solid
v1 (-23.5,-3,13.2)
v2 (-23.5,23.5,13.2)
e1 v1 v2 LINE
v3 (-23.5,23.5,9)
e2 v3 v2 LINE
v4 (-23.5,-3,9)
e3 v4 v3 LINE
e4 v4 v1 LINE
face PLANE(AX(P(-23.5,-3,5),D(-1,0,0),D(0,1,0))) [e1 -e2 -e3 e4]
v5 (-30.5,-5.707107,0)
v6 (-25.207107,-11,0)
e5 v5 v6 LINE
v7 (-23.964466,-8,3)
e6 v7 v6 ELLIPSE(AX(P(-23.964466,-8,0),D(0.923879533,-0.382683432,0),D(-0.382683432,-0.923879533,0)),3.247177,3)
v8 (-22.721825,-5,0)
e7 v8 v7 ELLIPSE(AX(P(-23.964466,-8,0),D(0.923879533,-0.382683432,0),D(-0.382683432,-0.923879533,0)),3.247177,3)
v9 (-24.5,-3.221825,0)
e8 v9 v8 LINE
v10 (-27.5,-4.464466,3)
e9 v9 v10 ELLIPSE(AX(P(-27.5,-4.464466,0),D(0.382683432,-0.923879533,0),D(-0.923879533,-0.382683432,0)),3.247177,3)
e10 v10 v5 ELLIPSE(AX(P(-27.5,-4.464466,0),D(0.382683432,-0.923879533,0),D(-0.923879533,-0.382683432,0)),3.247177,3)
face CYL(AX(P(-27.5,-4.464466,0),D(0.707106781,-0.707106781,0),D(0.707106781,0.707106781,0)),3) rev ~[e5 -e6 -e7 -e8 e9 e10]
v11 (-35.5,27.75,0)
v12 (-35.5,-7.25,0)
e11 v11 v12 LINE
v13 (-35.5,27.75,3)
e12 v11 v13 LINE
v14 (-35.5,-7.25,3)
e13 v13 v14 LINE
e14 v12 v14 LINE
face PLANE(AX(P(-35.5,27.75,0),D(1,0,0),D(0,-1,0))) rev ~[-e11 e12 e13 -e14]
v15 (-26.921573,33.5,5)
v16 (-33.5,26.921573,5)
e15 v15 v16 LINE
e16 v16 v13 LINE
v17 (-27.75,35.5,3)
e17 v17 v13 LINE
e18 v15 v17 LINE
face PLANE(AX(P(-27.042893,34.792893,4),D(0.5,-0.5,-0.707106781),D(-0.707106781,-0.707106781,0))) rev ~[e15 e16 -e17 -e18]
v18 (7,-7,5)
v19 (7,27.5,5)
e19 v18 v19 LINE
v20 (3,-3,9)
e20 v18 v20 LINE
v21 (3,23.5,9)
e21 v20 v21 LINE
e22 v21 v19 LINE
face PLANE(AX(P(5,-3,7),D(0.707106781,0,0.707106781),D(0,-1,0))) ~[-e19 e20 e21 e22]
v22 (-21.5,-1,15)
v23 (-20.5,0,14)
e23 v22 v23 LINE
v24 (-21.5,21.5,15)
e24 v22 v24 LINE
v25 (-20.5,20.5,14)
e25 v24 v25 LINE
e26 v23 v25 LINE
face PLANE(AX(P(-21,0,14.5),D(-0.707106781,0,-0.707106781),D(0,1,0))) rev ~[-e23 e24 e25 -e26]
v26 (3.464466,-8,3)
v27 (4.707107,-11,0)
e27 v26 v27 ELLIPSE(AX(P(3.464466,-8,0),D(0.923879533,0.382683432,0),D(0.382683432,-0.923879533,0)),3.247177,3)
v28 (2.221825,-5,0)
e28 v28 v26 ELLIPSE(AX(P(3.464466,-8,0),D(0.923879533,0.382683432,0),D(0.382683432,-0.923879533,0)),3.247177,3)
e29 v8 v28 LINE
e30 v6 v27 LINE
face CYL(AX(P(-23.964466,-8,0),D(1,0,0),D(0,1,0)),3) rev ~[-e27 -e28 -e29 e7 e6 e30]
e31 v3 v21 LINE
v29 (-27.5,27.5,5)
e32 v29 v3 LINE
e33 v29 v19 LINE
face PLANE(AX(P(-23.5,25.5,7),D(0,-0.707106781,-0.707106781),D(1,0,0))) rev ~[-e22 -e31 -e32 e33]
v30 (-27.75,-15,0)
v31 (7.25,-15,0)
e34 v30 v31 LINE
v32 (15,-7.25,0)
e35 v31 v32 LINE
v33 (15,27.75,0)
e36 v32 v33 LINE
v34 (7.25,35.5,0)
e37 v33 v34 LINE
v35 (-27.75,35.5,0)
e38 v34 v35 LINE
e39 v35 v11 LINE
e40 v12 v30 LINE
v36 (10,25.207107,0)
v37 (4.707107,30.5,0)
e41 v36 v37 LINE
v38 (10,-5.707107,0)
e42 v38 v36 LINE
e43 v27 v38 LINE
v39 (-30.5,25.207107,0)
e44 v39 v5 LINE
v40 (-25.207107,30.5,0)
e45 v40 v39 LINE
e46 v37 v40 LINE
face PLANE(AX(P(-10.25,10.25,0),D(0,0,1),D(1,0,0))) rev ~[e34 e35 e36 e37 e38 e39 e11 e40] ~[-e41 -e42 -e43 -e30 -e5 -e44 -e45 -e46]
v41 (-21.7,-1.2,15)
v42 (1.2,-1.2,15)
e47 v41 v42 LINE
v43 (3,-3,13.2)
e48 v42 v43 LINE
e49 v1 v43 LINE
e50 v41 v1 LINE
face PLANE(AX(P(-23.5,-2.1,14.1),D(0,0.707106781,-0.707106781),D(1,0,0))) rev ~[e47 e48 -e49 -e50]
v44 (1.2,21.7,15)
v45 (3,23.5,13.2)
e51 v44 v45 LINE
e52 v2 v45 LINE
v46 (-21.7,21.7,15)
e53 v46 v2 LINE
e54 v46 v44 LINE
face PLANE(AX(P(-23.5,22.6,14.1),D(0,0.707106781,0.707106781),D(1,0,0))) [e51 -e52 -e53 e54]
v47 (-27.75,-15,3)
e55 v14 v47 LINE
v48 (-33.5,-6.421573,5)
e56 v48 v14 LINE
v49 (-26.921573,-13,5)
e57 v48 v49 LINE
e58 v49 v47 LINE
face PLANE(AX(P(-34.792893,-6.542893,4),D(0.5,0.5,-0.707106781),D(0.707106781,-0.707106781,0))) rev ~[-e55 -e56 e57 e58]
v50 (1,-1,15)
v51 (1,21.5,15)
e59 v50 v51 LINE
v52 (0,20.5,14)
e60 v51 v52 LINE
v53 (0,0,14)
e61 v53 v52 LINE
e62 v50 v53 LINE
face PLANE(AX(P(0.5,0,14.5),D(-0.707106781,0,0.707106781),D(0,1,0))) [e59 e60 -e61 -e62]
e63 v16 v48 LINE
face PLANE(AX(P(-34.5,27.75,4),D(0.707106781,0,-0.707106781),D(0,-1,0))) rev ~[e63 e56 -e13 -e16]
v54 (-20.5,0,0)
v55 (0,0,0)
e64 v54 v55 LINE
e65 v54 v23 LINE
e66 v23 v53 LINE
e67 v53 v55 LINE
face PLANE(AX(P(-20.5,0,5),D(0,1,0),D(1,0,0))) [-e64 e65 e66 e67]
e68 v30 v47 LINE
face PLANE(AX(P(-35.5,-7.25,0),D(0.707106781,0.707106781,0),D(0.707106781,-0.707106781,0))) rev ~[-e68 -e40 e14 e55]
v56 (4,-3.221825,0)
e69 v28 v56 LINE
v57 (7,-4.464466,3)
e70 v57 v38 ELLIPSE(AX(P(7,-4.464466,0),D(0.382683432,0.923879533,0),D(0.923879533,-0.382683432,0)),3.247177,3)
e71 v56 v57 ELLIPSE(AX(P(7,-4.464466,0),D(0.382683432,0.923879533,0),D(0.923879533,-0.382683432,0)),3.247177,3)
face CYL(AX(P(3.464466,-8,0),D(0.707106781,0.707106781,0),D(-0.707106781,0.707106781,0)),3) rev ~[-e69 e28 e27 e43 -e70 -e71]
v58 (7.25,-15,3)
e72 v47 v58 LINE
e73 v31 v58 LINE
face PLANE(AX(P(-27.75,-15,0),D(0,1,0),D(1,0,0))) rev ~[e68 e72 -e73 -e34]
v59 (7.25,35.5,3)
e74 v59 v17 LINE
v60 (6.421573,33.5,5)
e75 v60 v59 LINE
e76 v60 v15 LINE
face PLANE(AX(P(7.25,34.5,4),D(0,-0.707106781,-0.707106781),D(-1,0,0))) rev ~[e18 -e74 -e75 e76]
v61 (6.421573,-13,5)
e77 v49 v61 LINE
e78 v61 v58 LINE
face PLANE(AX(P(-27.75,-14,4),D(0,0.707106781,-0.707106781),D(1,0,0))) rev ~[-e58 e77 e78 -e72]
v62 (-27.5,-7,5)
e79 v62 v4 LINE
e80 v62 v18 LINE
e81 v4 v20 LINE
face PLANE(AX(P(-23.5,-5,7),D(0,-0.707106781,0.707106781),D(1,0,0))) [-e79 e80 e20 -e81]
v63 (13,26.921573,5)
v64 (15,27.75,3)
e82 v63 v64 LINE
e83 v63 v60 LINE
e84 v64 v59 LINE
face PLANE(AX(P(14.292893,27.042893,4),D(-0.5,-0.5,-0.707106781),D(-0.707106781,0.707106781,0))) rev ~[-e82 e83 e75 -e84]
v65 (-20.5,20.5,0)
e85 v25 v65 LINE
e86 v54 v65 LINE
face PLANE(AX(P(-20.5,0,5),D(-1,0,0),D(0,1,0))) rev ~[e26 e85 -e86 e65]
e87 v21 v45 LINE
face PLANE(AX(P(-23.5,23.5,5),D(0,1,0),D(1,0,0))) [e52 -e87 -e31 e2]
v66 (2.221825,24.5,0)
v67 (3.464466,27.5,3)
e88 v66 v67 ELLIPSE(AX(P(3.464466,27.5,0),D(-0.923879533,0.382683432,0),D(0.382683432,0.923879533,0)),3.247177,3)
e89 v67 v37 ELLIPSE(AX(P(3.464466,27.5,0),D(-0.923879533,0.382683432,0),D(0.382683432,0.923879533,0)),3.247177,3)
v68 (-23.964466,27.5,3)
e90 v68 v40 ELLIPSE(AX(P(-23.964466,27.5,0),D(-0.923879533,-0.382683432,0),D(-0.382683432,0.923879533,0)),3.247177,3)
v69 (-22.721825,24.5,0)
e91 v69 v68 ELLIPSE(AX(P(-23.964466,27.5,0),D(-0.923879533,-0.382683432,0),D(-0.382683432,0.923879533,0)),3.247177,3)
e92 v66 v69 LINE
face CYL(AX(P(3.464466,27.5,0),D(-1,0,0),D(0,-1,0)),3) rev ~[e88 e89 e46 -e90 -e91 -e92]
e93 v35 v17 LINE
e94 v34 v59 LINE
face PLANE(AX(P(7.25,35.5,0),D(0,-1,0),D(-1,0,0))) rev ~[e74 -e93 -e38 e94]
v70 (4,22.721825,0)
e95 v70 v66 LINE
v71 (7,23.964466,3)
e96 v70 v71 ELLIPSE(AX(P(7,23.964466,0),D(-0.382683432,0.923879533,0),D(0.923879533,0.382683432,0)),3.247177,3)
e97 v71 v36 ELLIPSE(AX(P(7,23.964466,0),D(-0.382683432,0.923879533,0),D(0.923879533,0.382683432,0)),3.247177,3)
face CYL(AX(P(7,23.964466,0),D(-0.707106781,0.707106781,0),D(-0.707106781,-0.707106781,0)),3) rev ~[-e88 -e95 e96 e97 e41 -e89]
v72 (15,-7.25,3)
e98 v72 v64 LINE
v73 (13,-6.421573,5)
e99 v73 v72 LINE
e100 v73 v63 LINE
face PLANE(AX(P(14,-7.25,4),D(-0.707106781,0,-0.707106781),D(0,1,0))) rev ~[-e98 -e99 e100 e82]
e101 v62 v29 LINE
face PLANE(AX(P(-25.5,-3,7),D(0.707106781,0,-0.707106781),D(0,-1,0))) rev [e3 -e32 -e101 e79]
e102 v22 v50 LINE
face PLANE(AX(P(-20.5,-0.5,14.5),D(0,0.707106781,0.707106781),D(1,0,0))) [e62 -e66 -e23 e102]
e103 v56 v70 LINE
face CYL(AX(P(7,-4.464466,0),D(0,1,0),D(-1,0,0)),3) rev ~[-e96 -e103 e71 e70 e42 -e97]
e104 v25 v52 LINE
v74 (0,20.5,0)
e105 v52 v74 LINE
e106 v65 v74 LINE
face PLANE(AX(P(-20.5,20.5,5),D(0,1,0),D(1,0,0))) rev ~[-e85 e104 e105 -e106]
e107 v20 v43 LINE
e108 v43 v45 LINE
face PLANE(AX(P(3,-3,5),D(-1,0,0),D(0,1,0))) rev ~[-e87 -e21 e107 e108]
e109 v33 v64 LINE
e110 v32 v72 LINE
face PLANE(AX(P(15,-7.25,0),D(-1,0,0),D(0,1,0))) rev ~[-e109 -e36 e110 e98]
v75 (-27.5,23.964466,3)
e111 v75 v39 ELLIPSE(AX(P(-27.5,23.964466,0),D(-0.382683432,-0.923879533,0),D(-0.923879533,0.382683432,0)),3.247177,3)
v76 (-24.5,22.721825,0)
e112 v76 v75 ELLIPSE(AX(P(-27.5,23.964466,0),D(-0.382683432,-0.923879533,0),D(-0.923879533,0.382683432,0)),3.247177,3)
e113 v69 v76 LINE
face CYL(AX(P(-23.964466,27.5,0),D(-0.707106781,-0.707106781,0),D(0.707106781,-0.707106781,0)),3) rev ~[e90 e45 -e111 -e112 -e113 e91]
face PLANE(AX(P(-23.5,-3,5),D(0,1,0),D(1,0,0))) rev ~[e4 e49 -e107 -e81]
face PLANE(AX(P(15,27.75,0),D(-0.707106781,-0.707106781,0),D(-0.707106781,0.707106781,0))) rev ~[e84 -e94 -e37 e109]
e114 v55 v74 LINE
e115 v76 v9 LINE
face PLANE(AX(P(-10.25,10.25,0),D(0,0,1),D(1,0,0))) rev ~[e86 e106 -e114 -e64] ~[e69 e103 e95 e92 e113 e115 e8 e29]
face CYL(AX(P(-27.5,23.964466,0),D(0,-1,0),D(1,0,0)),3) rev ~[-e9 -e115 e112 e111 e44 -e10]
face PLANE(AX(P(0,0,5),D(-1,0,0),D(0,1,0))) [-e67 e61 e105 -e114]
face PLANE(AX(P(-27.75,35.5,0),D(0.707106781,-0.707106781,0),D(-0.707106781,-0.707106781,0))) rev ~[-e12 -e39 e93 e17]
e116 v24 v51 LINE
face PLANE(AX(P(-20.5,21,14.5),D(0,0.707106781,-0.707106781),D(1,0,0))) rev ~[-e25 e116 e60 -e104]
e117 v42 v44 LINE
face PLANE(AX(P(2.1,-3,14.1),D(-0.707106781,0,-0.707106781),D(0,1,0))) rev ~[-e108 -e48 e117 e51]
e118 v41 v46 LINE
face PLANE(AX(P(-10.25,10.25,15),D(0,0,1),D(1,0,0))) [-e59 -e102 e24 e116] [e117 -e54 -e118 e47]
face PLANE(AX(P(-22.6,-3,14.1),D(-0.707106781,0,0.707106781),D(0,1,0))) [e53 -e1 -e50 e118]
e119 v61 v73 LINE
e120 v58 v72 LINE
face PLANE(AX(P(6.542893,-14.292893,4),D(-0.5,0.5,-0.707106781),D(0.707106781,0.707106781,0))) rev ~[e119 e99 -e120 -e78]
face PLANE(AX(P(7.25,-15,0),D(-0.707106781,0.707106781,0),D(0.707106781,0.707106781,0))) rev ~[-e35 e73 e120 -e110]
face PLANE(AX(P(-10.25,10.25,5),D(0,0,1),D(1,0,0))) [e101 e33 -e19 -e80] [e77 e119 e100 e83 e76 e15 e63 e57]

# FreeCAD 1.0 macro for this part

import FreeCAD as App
import Part
import Sketcher

V = App.Vector


def edges_at(feature, points):
    """Names of the edges that pass closest to the given points."""
    edges = feature.Shape.Edges
    near = lambda p: min(range(len(edges)), key=lambda i: edges[i].distToShape(Part.Vertex(*p))[0])
    return sorted({f"Edge{near(p) + 1}" for p in points})


def add_polygon(sketch, points):
    """Adds a closed chain of lines whose ends are joined by coincident constraints."""
    first, n = sketch.GeometryCount, len(points)
    for a, b in zip(points, points[1:] + points[:1]):
        sketch.addGeometry(Part.LineSegment(App.Vector(*a, 0), App.Vector(*b, 0)), False)
    for i in range(n):
        sketch.addConstraint(Sketcher.Constraint("Coincident", first + i, 2, first + (i + 1) % n, 1))

doc = App.newDocument("Part")
body = doc.addObject("PartDesign::Body", "Body")

# Sketch on XY plane
sketch1 = body.newObject("Sketcher::SketchObject", "Sketch")
sketch1.AttachmentSupport = (doc.getObject("XY_Plane"), [""])
sketch1.MapMode = "FlatFace"
add_polygon(sketch1, [(7, -15), (15, -7), (15, 28), (7, 36), (-28, 36), (-36, 28), (-36, -7), (-28, -15)])  # lines 0-7
add_polygon(sketch1, [(0, 0), (-20, 0), (-20, 20), (0, 20)])  # lines 8-11
sketch1.addConstraint(Sketcher.Constraint("Vertical", 1))
sketch1.addConstraint(Sketcher.Constraint("Horizontal", 3))
sketch1.addConstraint(Sketcher.Constraint("Vertical", 5))
sketch1.addConstraint(Sketcher.Constraint("Horizontal", 7))
sketch1.addConstraint(Sketcher.Constraint("Horizontal", 8))
sketch1.addConstraint(Sketcher.Constraint("Vertical", 9))
sketch1.addConstraint(Sketcher.Constraint("Horizontal", 10))
sketch1.addConstraint(Sketcher.Constraint("Vertical", 11))
sketch1.addConstraint(Sketcher.Constraint("Coincident", 11, 2, -1, 1))
sketch1.addConstraint(Sketcher.Constraint("Perpendicular", 0, 2))
sketch1.addConstraint(Sketcher.Constraint("Perpendicular", 2, 4))
sketch1.addConstraint(Sketcher.Constraint("Perpendicular", 4, 6))
sketch1.addConstraint(Sketcher.Constraint("Horizontal", 1, 2, 4, 2))
sketch1.addConstraint(Sketcher.Constraint("Horizontal", 0, 2, 5, 2))
sketch1.addConstraint(Sketcher.Constraint("Vertical", 3, 2, 6, 2))
sketch1.addConstraint(Sketcher.Constraint("Vertical", 2, 2, 7, 2))
sketch1.addConstraint(Sketcher.Constraint("Equal", 7, 1))
sketch1.addConstraint(Sketcher.Constraint("Equal", 10, 9))
sketch1.addConstraint(Sketcher.Constraint("DistanceX", 3, 2, 3, 1, 35.0))
sketch1.addConstraint(Sketcher.Constraint("DistanceX", 8, 2, 8, 1, 20.5))
sketch1.addConstraint(Sketcher.Constraint("DistanceX", -1, 1, 0, 2, 15.0))
sketch1.addConstraint(Sketcher.Constraint("DistanceY", 6, 2, -1, 1, 15.0))
sketch1.addConstraint(Sketcher.Constraint("DistanceX", 5, 2, 8, 2, 15.0))
pad1 = body.newObject("PartDesign::Pad", "Pad")
pad1.Profile = sketch1
pad1.Length = 5

# Sketch on XY plane
sketch2 = body.newObject("Sketcher::SketchObject", "Sketch001")
sketch2.AttachmentSupport = (doc.getObject("XY_Plane"), [""])
sketch2.MapMode = "FlatFace"
sketch2.AttachmentOffset = App.Placement(V(0, 0, 5), App.Rotation())
add_polygon(sketch2, [(-24, 24), (-24, -3), (3, -3), (3, 24)])  # lines 0-3
add_polygon(sketch2, [(0, 0), (-20, 0), (-20, 20), (0, 20)])  # lines 4-7
sketch2.addConstraint(Sketcher.Constraint("Vertical", 0))
sketch2.addConstraint(Sketcher.Constraint("Horizontal", 1))
sketch2.addConstraint(Sketcher.Constraint("Vertical", 2))
sketch2.addConstraint(Sketcher.Constraint("Horizontal", 3))
sketch2.addConstraint(Sketcher.Constraint("Horizontal", 4))
sketch2.addConstraint(Sketcher.Constraint("Vertical", 5))
sketch2.addConstraint(Sketcher.Constraint("Horizontal", 6))
sketch2.addConstraint(Sketcher.Constraint("Vertical", 7))
sketch2.addConstraint(Sketcher.Constraint("Coincident", 7, 2, -1, 1))
sketch2.addConstraint(Sketcher.Constraint("Equal", 3, 0))
sketch2.addConstraint(Sketcher.Constraint("Equal", 6, 5))
sketch2.addConstraint(Sketcher.Constraint("DistanceX", 1, 1, 1, 2, 26.5))
sketch2.addConstraint(Sketcher.Constraint("DistanceX", 4, 2, 4, 1, 20.5))
sketch2.addConstraint(Sketcher.Constraint("DistanceY", 0, 2, -1, 1, 3.0))
sketch2.addConstraint(Sketcher.Constraint("DistanceX", -1, 1, 1, 2, 3.0))
pad2 = body.newObject("PartDesign::Pad", "Pad001")
pad2.Profile = sketch2
pad2.Length = 10
doc.recompute()

chamfer = body.newObject("PartDesign::Chamfer", "Chamfer")
chamfer.Base = (pad2, edges_at(pad2, [
    (-10.25, -3, 5),
    (3, 10.25, 5),
    (-10.25, 23.5, 5),
    (-23.5, 10.25, 5),
]))
chamfer.Size = 4
doc.recompute()

chamfer2 = body.newObject("PartDesign::Chamfer", "Chamfer001")
chamfer2.Base = (chamfer, edges_at(chamfer, [
    (0, 10.25, 15),
    (-10.25, 0, 15),
    (-20.5, 10.25, 15),
    (-10.25, 20.5, 15),
]))
chamfer2.Size = 1
doc.recompute()

chamfer3 = body.newObject("PartDesign::Chamfer", "Chamfer002")
chamfer3.Base = (chamfer2, edges_at(chamfer2, [
    (3, 10.25, 15),
    (-10.25, 23.5, 15),
    (-23.5, 10.25, 15),
    (-10.25, -3, 15),
]))
chamfer3.Size = 1.8
doc.recompute()

chamfer4 = body.newObject("PartDesign::Chamfer", "Chamfer003")
chamfer4.Base = (chamfer3, edges_at(chamfer3, [
    (15, 10.25, 5),
    (11.125, 31.625, 5),
    (-10.25, 35.5, 5),
    (-31.625, 31.625, 5),
    (-35.5, 10.25, 5),
    (-31.625, -11.125, 5),
    (-10.25, -15, 5),
    (11.125, -11.125, 5),
]))
chamfer4.Size = 2

# Sketch on XZ plane
sketch3 = body.newObject("Sketcher::SketchObject", "Sketch002")
sketch3.AttachmentSupport = (doc.getObject("XZ_Plane"), [""])
sketch3.MapMode = "FlatFace"
sketch3.addGeometry(Part.Circle(V(-27.5, 0, 0), V(0, 0, 1), 3), False)
sketch3.addConstraint(Sketcher.Constraint("PointOnObject", 0, 3, -1))
sketch3.addConstraint(Sketcher.Constraint("Diameter", 0, 6.0))
sketch3.addConstraint(Sketcher.Constraint("DistanceX", 0, 3, -1, 1, 27.5))

# Sketch on XY plane
sketch4 = body.newObject("Sketcher::SketchObject", "Sketch003")
sketch4.AttachmentSupport = (doc.getObject("XY_Plane"), [""])
sketch4.MapMode = "FlatFace"
add_polygon(sketch4, [(-28, 24), (-28, -4), (-24, -8), (3, -8), (7, -4), (7, 24), (3, 28), (-24, 28)])  # lines 0-7
sketch4.addConstraint(Sketcher.Constraint("Vertical", 0))
sketch4.addConstraint(Sketcher.Constraint("Horizontal", 2))
sketch4.addConstraint(Sketcher.Constraint("Vertical", 4))
sketch4.addConstraint(Sketcher.Constraint("Horizontal", 6))
sketch4.addConstraint(Sketcher.Constraint("Perpendicular", 1, 3))
sketch4.addConstraint(Sketcher.Constraint("Perpendicular", 3, 5))
sketch4.addConstraint(Sketcher.Constraint("Perpendicular", 5, 7))
sketch4.addConstraint(Sketcher.Constraint("Horizontal", 0, 2, 3, 2))
sketch4.addConstraint(Sketcher.Constraint("Horizontal", 4, 2, 7, 2))
sketch4.addConstraint(Sketcher.Constraint("Vertical", 2, 2, 5, 2))
sketch4.addConstraint(Sketcher.Constraint("Vertical", 1, 2, 6, 2))
sketch4.addConstraint(Sketcher.Constraint("Distance", 1, 5.0))
sketch4.addConstraint(Sketcher.Constraint("DistanceY", 1, 2, -1, 1, 8.0))
sketch4.addConstraint(Sketcher.Constraint("DistanceX", -1, 1, 3, 2, 7.0))
sketch4.addConstraint(Sketcher.Constraint("DistanceX", 0, 2, -1, 1, 27.5))
sketch4.addConstraint(Sketcher.Constraint("DistanceY", -1, 1, 5, 2, 27.5))
doc.recompute()

subtractivepipe = body.newObject("PartDesign::SubtractivePipe", "SubtractivePipe")
subtractivepipe.Profile = sketch3
subtractivepipe.Spine = (sketch4, ["Edge1", "Edge2", "Edge3", "Edge4", "Edge5", "Edge6", "Edge7", "Edge8"])
subtractivepipe.Transition = "Right corner"

doc.recompute()
